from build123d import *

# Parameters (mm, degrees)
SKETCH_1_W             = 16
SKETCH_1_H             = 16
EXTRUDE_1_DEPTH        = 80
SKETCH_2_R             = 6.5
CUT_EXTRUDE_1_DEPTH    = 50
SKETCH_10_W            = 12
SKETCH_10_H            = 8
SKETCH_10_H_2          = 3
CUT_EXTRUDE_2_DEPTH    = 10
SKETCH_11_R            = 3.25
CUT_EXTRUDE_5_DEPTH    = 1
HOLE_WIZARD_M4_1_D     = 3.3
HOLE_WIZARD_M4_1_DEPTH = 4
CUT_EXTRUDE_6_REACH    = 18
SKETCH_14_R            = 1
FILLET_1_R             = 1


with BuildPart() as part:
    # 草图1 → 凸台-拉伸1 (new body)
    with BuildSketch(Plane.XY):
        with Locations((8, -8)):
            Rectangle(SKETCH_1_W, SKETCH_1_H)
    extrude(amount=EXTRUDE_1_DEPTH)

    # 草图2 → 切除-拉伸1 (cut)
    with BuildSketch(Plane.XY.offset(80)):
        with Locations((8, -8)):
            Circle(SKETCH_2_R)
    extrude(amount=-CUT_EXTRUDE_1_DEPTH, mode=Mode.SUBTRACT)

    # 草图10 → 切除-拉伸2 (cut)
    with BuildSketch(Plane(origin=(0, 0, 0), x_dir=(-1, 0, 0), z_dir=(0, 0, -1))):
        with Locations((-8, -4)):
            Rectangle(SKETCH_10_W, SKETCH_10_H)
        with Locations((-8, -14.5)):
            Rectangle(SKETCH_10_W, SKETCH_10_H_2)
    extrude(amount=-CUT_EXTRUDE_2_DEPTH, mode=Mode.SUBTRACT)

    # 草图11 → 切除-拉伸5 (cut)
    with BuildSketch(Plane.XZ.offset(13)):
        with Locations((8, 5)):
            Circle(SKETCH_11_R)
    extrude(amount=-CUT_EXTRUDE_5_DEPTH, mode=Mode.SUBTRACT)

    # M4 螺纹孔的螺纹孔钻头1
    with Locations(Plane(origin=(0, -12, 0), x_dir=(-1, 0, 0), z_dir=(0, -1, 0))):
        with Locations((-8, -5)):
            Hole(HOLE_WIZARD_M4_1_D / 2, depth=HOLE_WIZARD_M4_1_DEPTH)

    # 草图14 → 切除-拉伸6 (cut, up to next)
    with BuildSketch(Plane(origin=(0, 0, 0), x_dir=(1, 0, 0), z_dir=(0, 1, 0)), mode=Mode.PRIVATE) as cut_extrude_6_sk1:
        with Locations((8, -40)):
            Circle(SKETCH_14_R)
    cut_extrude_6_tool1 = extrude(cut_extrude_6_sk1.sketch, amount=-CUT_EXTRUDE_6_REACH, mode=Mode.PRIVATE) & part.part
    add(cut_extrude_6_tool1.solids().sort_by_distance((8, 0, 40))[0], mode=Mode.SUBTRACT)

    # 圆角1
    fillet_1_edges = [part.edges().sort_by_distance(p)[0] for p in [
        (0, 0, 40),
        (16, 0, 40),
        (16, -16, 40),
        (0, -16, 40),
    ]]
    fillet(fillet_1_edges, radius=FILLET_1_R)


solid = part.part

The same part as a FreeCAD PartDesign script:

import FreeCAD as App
import Part
import Sketcher
from FreeCAD import Vector


def edges_at(feature, points):
    """Names of the edges that pass closest to the given points."""
    edges = feature.Shape.Edges
    near = lambda p: min(range(len(edges)), key=lambda i: edges[i].distToShape(Part.Vertex(*p))[0])
    return sorted({f"Edge{near(p) + 1}" for p in points})

doc = App.newDocument("Part")
body = doc.addObject("PartDesign::Body", "Body")

sketch1 = body.newObject("Sketcher::SketchObject", "Sketch")
sketch1.AttachmentSupport = (doc.getObject("XY_Plane"), [""])
sketch1.MapMode = "FlatFace"
sketch1.addGeometry(Part.LineSegment(Vector(0, 0, 0), Vector(0, -16, 0)), False)
sketch1.addGeometry(Part.LineSegment(Vector(0, -16, 0), Vector(16, -16, 0)), False)
sketch1.addGeometry(Part.LineSegment(Vector(16, -16, 0), Vector(16, 0, 0)), False)
sketch1.addGeometry(Part.LineSegment(Vector(16, 0, 0), Vector(0, 0, 0)), False)
sketch1.addConstraint(Sketcher.Constraint("Coincident", 0, 2, 1, 1))
sketch1.addConstraint(Sketcher.Constraint("Coincident", 1, 2, 2, 1))
sketch1.addConstraint(Sketcher.Constraint("Coincident", 2, 2, 3, 1))
sketch1.addConstraint(Sketcher.Constraint("Coincident", 3, 2, 0, 1))
sketch1.addConstraint(Sketcher.Constraint("Vertical", 0))
sketch1.addConstraint(Sketcher.Constraint("Horizontal", 1))
sketch1.addConstraint(Sketcher.Constraint("Vertical", 2))
sketch1.addConstraint(Sketcher.Constraint("Horizontal", 3))
sketch1.addConstraint(Sketcher.Constraint("Coincident", 3, 2, -1, 1))
sketch1.addConstraint(Sketcher.Constraint("Equal", 3, 0))
sketch1.addConstraint(Sketcher.Constraint("DistanceX", 1, 1, 1, 2, 16.0))
pad1 = body.newObject("PartDesign::Pad", "Pad")
pad1.Profile = sketch1
pad1.Length = 80

sketch2 = body.newObject("Sketcher::SketchObject", "Sketch001")
sketch2.AttachmentSupport = (doc.getObject("XY_Plane"), [""])
sketch2.MapMode = "FlatFace"
sketch2.AttachmentOffset = App.Placement(Vector(0, 0, 80), App.Rotation())
sketch2.addGeometry(Part.Circle(Vector(8, -8, 0), Vector(0, 0, 1), 6.5), False)
sketch2.addConstraint(Sketcher.Constraint("Diameter", 0, 13.0))
sketch2.addConstraint(Sketcher.Constraint("DistanceX", -1, 1, 0, 3, 8.0))
sketch2.addConstraint(Sketcher.Constraint("DistanceY", 0, 3, -1, 1, 8.0))
pocket1 = body.newObject("PartDesign::Pocket", "Pocket")
pocket1.Profile = sketch2
pocket1.Length = 50

sketch3 = body.newObject("Sketcher::SketchObject", "Sketch002")
sketch3.AttachmentSupport = (doc.getObject("XY_Plane"), [""])
sketch3.MapMode = "FlatFace"
sketch3.addGeometry(Part.LineSegment(Vector(14, 0, 0), Vector(14, -8, 0)), False)
sketch3.addGeometry(Part.LineSegment(Vector(14, -8, 0), Vector(2, -8, 0)), False)
sketch3.addGeometry(Part.LineSegment(Vector(2, -8, 0), Vector(2, 0, 0)), False)
sketch3.addGeometry(Part.LineSegment(Vector(2, 0, 0), Vector(14, 0, 0)), False)
sketch3.addGeometry(Part.LineSegment(Vector(14, -13, 0), Vector(14, -16, 0)), False)
sketch3.addGeometry(Part.LineSegment(Vector(14, -16, 0), Vector(2, -16, 0)), False)
sketch3.addGeometry(Part.LineSegment(Vector(2, -16, 0), Vector(2, -13, 0)), False)
sketch3.addGeometry(Part.LineSegment(Vector(2, -13, 0), Vector(14, -13, 0)), False)
sketch3.addConstraint(Sketcher.Constraint("Coincident", 0, 2, 1, 1))
sketch3.addConstraint(Sketcher.Constraint("Coincident", 1, 2, 2, 1))
sketch3.addConstraint(Sketcher.Constraint("Coincident", 2, 2, 3, 1))
sketch3.addConstraint(Sketcher.Constraint("Coincident", 3, 2, 0, 1))
sketch3.addConstraint(Sketcher.Constraint("Coincident", 4, 2, 5, 1))
sketch3.addConstraint(Sketcher.Constraint("Coincident", 5, 2, 6, 1))
sketch3.addConstraint(Sketcher.Constraint("Coincident", 6, 2, 7, 1))
sketch3.addConstraint(Sketcher.Constraint("Coincident", 7, 2, 4, 1))
sketch3.addConstraint(Sketcher.Constraint("Vertical", 0))
sketch3.addConstraint(Sketcher.Constraint("Horizontal", 1))
sketch3.addConstraint(Sketcher.Constraint("Vertical", 2))
sketch3.addConstraint(Sketcher.Constraint("Horizontal", 3))
sketch3.addConstraint(Sketcher.Constraint("Vertical", 4))
sketch3.addConstraint(Sketcher.Constraint("Horizontal", 5))
sketch3.addConstraint(Sketcher.Constraint("Vertical", 6))
sketch3.addConstraint(Sketcher.Constraint("Horizontal", 7))
sketch3.addConstraint(Sketcher.Constraint("PointOnObject", 2, 2, -1))
sketch3.addConstraint(Sketcher.Constraint("Vertical", 3, 2, 4, 2))
sketch3.addConstraint(Sketcher.Constraint("Vertical", 2, 2, 5, 2))
sketch3.addConstraint(Sketcher.Constraint("DistanceX", 1, 2, 1, 1, 12.0))
sketch3.addConstraint(Sketcher.Constraint("DistanceY", 0, 2, 0, 1, 8.0))
sketch3.addConstraint(Sketcher.Constraint("DistanceY", 4, 2, 4, 1, 3.0))
sketch3.addConstraint(Sketcher.Constraint("DistanceX", -1, 1, 0, 2, 14.0))
sketch3.addConstraint(Sketcher.Constraint("DistanceY", 4, 2, -1, 1, 16.0))
pocket2 = body.newObject("PartDesign::Pocket", "Pocket001")
pocket2.Profile = sketch3
pocket2.Length = 10
pocket2.Reversed = True

sketch4 = body.newObject("Sketcher::SketchObject", "Sketch003")
sketch4.AttachmentSupport = (doc.getObject("XZ_Plane"), [""])
sketch4.MapMode = "FlatFace"
sketch4.AttachmentOffset = App.Placement(Vector(0, 0, 13), App.Rotation())
sketch4.addGeometry(Part.Circle(Vector(8, 5, 0), Vector(0, 0, 1), 3.25), False)
sketch4.addConstraint(Sketcher.Constraint("Diameter", 0, 6.5))
sketch4.addConstraint(Sketcher.Constraint("DistanceX", -1, 1, 0, 3, 8.0))
sketch4.addConstraint(Sketcher.Constraint("DistanceY", -1, 1, 0, 3, 5.0))
pocket3 = body.newObject("PartDesign::Pocket", "Pocket002")
pocket3.Profile = sketch4
pocket3.Length = 1

sketch5 = body.newObject("Sketcher::SketchObject", "Sketch004")
sketch5.AttachmentSupport = (doc.getObject("XZ_Plane"), [""])
sketch5.MapMode = "FlatFace"
sketch5.AttachmentOffset = App.Placement(Vector(0, 0, 12), App.Rotation())
sketch5.addGeometry(Part.Circle(Vector(8, 5, 0), Vector(0, 0, 1), 1.65), False)
sketch5.addConstraint(Sketcher.Constraint("Diameter", 0, 3.3))
sketch5.addConstraint(Sketcher.Constraint("DistanceX", -1, 1, 0, 3, 8.0))
sketch5.addConstraint(Sketcher.Constraint("DistanceY", -1, 1, 0, 3, 5.0))
doc.recompute()
hole = body.newObject("PartDesign::Hole", "Hole")
hole.Profile = sketch5
hole.ThreadType = "None"
hole.Diameter = 3.3
hole.DepthType = "Dimension"
hole.Depth = 4
hole.DrillPoint = "Flat"

sketch6 = body.newObject("Sketcher::SketchObject", "Sketch005")
sketch6.AttachmentSupport = (doc.getObject("XZ_Plane"), [""])
sketch6.MapMode = "FlatFace"
sketch6.addGeometry(Part.Circle(Vector(8, 40, 0), Vector(0, 0, 1), 1), False)
sketch6.addConstraint(Sketcher.Constraint("Diameter", 0, 2.0))
sketch6.addConstraint(Sketcher.Constraint("DistanceX", -1, 1, 0, 3, 8.0))
sketch6.addConstraint(Sketcher.Constraint("DistanceY", -1, 1, 0, 3, 40.0))
pocket4 = body.newObject("PartDesign::Pocket", "Pocket003")
pocket4.Profile = sketch6
pocket4.Type = "UpToFirst"
pocket4.Reversed = True
doc.recompute()

fillet = body.newObject("PartDesign::Fillet", "Fillet")
fillet.Base = (pocket4, edges_at(pocket4, [
    (0, 0, 40),
    (16, 0, 40),
    (16, -16, 40),
    (0, -16, 40),
]))
fillet.Radius = 1

doc.recompute()
